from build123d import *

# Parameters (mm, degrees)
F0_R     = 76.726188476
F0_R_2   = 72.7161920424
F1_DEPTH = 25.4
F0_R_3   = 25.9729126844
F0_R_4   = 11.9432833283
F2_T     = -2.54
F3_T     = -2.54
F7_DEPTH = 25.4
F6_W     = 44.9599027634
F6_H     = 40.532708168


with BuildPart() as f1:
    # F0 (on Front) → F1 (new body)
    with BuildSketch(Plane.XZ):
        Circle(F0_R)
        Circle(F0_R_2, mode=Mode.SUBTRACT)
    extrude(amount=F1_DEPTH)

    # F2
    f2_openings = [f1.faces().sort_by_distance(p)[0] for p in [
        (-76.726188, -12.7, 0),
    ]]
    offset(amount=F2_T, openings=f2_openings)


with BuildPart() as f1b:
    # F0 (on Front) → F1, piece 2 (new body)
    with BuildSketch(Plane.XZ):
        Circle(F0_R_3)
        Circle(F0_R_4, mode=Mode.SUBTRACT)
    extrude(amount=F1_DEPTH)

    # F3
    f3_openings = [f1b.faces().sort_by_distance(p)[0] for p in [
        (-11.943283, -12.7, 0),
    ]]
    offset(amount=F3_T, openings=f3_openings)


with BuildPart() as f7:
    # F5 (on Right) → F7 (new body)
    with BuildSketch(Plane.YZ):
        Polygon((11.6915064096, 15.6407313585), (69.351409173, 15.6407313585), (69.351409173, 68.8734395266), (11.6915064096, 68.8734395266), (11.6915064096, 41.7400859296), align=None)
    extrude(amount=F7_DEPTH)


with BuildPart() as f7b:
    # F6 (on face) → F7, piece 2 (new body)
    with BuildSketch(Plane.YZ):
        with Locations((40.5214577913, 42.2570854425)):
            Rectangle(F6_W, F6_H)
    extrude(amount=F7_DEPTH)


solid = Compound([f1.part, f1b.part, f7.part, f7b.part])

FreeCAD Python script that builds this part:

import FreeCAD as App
import Part
import Sketcher

V = App.Vector
Q = App.Units.Quantity


def faces_at(feature, points):
    """Names of the faces that lie closest to the given points."""
    faces = feature.Shape.Faces
    near = lambda p: min(range(len(faces)), key=lambda i: faces[i].distToShape(Part.Vertex(*p))[0])
    return sorted({f"Face{near(p) + 1}" for p in points})


def add_polygon(sketch, points):
    """Adds a closed chain of lines whose ends are joined by coincident constraints."""
    first, n = sketch.GeometryCount, len(points)
    for a, b in zip(points, points[1:] + points[:1]):
        sketch.addGeometry(Part.LineSegment(App.Vector(*a, 0), App.Vector(*b, 0)), False)
    for i in range(n):
        sketch.addConstraint(Sketcher.Constraint("Coincident", first + i, 2, first + (i + 1) % n, 1))

doc = App.newDocument("Part")
body = doc.addObject("PartDesign::Body", "Body")

# Sketch on XZ plane
sketch1 = body.newObject("Sketcher::SketchObject", "Sketch")
sketch1.AttachmentSupport = (doc.getObject("XZ_Plane"), [""])
sketch1.MapMode = "FlatFace"
sketch1.addGeometry([
    Part.Circle(V(0, 0, 0), V(0, 0, 1), 77),
    Part.Circle(V(0, 0, 0), V(0, 0, 1), 73),
], False)
sketch1.addConstraint([
    Sketcher.Constraint("Coincident", 0, 3, -1, 1),
    Sketcher.Constraint("Coincident", 1, 3, -1, 1),
    Sketcher.Constraint("Diameter", 0, Q("153.452377 mm")),
    Sketcher.Constraint("Diameter", 1, Q("145.432384 mm")),
])
pad1 = body.newObject("PartDesign::Pad", "Pad")
pad1.Profile = sketch1
pad1.Length = Q("1 in")
doc.recompute()

thickness = body.newObject("PartDesign::Thickness", "Thickness")
thickness.Base = (pad1, faces_at(pad1, [(-76.726, -12.7, 0)]))
thickness.Value = Q("0.1 in")
thickness.Reversed = True
thickness.Join = "Arc"
body2 = doc.addObject("PartDesign::Body", "Body001")

# Sketch on XZ plane
sketch2 = body2.newObject("Sketcher::SketchObject", "Sketch001")
sketch2.AttachmentSupport = (doc.getObject("XZ_Plane001"), [""])
sketch2.MapMode = "FlatFace"
sketch2.addGeometry([
    Part.Circle(V(0, 0, 0), V(0, 0, 1), 26),
    Part.Circle(V(0, 0, 0), V(0, 0, 1), 12),
], False)
sketch2.addConstraint([
    Sketcher.Constraint("Coincident", 0, 3, -1, 1),
    Sketcher.Constraint("Coincident", 1, 3, -1, 1),
    Sketcher.Constraint("Diameter", 0, Q("51.945825 mm")),
    Sketcher.Constraint("Diameter", 1, Q("23.886567 mm")),
])
pad2 = body2.newObject("PartDesign::Pad", "Pad001")
pad2.Profile = sketch2
pad2.Length = Q("1 in")
doc.recompute()

thickness2 = body2.newObject("PartDesign::Thickness", "Thickness001")
thickness2.Base = (pad2, faces_at(pad2, [(-11.943, -12.7, 0)]))
thickness2.Value = Q("0.1 in")
thickness2.Reversed = True
thickness2.Join = "Arc"
body3 = doc.addObject("PartDesign::Body", "Body002")

# Sketch on YZ plane
sketch3 = body3.newObject("Sketcher::SketchObject", "Sketch002")
sketch3.AttachmentSupport = (doc.getObject("YZ_Plane002"), [""])
sketch3.MapMode = "FlatFace"
add_polygon(sketch3, [(12, 16), (69, 16), (69, 69), (12, 69)])  # lines 0-3
sketch3.addConstraint([
    Sketcher.Constraint("Horizontal", 0),
    Sketcher.Constraint("Vertical", 1),
    Sketcher.Constraint("Horizontal", 2),
    Sketcher.Constraint("Vertical", 3),
    Sketcher.Constraint("DistanceY", 1, 1, 1, 2, Q("53.232708 mm")),
    Sketcher.Constraint("DistanceX", 0, 1, 0, 2, Q("57.659903 mm")),
    Sketcher.Constraint("DistanceX", -1, 1, 0, 2, Q("69.351409 mm")),
    Sketcher.Constraint("DistanceY", -1, 1, 0, 2, Q("15.640731 mm")),
])
pad3 = body3.newObject("PartDesign::Pad", "Pad002")
pad3.Profile = sketch3
pad3.Length = Q("1 in")
body4 = doc.addObject("PartDesign::Body", "Body003")

# Sketch on YZ plane
sketch4 = body4.newObject("Sketcher::SketchObject", "Sketch003")
sketch4.AttachmentSupport = (doc.getObject("YZ_Plane003"), [""])
sketch4.MapMode = "FlatFace"
add_polygon(sketch4, [(18, 63), (18, 22), (63, 22), (63, 63)])  # lines 0-3
sketch4.addConstraint([
    Sketcher.Constraint("Vertical", 0),
    Sketcher.Constraint("Horizontal", 1),
    Sketcher.Constraint("Vertical", 2),
    Sketcher.Constraint("Horizontal", 3),
    Sketcher.Constraint("DistanceY", 0, 2, 0, 1, Q("40.532708 mm")),
    Sketcher.Constraint("DistanceX", 1, 1, 1, 2, Q("44.959903 mm")),
    Sketcher.Constraint("DistanceY", -1, 1, 0, 2, Q("21.990731 mm")),
    Sketcher.Constraint("DistanceX", -1, 1, 1, 2, Q("63.001409 mm")),
])
pad4 = body4.newObject("PartDesign::Pad", "Pad003")
pad4.Profile = sketch4
pad4.Length = Q("1 in")

doc.recompute()
